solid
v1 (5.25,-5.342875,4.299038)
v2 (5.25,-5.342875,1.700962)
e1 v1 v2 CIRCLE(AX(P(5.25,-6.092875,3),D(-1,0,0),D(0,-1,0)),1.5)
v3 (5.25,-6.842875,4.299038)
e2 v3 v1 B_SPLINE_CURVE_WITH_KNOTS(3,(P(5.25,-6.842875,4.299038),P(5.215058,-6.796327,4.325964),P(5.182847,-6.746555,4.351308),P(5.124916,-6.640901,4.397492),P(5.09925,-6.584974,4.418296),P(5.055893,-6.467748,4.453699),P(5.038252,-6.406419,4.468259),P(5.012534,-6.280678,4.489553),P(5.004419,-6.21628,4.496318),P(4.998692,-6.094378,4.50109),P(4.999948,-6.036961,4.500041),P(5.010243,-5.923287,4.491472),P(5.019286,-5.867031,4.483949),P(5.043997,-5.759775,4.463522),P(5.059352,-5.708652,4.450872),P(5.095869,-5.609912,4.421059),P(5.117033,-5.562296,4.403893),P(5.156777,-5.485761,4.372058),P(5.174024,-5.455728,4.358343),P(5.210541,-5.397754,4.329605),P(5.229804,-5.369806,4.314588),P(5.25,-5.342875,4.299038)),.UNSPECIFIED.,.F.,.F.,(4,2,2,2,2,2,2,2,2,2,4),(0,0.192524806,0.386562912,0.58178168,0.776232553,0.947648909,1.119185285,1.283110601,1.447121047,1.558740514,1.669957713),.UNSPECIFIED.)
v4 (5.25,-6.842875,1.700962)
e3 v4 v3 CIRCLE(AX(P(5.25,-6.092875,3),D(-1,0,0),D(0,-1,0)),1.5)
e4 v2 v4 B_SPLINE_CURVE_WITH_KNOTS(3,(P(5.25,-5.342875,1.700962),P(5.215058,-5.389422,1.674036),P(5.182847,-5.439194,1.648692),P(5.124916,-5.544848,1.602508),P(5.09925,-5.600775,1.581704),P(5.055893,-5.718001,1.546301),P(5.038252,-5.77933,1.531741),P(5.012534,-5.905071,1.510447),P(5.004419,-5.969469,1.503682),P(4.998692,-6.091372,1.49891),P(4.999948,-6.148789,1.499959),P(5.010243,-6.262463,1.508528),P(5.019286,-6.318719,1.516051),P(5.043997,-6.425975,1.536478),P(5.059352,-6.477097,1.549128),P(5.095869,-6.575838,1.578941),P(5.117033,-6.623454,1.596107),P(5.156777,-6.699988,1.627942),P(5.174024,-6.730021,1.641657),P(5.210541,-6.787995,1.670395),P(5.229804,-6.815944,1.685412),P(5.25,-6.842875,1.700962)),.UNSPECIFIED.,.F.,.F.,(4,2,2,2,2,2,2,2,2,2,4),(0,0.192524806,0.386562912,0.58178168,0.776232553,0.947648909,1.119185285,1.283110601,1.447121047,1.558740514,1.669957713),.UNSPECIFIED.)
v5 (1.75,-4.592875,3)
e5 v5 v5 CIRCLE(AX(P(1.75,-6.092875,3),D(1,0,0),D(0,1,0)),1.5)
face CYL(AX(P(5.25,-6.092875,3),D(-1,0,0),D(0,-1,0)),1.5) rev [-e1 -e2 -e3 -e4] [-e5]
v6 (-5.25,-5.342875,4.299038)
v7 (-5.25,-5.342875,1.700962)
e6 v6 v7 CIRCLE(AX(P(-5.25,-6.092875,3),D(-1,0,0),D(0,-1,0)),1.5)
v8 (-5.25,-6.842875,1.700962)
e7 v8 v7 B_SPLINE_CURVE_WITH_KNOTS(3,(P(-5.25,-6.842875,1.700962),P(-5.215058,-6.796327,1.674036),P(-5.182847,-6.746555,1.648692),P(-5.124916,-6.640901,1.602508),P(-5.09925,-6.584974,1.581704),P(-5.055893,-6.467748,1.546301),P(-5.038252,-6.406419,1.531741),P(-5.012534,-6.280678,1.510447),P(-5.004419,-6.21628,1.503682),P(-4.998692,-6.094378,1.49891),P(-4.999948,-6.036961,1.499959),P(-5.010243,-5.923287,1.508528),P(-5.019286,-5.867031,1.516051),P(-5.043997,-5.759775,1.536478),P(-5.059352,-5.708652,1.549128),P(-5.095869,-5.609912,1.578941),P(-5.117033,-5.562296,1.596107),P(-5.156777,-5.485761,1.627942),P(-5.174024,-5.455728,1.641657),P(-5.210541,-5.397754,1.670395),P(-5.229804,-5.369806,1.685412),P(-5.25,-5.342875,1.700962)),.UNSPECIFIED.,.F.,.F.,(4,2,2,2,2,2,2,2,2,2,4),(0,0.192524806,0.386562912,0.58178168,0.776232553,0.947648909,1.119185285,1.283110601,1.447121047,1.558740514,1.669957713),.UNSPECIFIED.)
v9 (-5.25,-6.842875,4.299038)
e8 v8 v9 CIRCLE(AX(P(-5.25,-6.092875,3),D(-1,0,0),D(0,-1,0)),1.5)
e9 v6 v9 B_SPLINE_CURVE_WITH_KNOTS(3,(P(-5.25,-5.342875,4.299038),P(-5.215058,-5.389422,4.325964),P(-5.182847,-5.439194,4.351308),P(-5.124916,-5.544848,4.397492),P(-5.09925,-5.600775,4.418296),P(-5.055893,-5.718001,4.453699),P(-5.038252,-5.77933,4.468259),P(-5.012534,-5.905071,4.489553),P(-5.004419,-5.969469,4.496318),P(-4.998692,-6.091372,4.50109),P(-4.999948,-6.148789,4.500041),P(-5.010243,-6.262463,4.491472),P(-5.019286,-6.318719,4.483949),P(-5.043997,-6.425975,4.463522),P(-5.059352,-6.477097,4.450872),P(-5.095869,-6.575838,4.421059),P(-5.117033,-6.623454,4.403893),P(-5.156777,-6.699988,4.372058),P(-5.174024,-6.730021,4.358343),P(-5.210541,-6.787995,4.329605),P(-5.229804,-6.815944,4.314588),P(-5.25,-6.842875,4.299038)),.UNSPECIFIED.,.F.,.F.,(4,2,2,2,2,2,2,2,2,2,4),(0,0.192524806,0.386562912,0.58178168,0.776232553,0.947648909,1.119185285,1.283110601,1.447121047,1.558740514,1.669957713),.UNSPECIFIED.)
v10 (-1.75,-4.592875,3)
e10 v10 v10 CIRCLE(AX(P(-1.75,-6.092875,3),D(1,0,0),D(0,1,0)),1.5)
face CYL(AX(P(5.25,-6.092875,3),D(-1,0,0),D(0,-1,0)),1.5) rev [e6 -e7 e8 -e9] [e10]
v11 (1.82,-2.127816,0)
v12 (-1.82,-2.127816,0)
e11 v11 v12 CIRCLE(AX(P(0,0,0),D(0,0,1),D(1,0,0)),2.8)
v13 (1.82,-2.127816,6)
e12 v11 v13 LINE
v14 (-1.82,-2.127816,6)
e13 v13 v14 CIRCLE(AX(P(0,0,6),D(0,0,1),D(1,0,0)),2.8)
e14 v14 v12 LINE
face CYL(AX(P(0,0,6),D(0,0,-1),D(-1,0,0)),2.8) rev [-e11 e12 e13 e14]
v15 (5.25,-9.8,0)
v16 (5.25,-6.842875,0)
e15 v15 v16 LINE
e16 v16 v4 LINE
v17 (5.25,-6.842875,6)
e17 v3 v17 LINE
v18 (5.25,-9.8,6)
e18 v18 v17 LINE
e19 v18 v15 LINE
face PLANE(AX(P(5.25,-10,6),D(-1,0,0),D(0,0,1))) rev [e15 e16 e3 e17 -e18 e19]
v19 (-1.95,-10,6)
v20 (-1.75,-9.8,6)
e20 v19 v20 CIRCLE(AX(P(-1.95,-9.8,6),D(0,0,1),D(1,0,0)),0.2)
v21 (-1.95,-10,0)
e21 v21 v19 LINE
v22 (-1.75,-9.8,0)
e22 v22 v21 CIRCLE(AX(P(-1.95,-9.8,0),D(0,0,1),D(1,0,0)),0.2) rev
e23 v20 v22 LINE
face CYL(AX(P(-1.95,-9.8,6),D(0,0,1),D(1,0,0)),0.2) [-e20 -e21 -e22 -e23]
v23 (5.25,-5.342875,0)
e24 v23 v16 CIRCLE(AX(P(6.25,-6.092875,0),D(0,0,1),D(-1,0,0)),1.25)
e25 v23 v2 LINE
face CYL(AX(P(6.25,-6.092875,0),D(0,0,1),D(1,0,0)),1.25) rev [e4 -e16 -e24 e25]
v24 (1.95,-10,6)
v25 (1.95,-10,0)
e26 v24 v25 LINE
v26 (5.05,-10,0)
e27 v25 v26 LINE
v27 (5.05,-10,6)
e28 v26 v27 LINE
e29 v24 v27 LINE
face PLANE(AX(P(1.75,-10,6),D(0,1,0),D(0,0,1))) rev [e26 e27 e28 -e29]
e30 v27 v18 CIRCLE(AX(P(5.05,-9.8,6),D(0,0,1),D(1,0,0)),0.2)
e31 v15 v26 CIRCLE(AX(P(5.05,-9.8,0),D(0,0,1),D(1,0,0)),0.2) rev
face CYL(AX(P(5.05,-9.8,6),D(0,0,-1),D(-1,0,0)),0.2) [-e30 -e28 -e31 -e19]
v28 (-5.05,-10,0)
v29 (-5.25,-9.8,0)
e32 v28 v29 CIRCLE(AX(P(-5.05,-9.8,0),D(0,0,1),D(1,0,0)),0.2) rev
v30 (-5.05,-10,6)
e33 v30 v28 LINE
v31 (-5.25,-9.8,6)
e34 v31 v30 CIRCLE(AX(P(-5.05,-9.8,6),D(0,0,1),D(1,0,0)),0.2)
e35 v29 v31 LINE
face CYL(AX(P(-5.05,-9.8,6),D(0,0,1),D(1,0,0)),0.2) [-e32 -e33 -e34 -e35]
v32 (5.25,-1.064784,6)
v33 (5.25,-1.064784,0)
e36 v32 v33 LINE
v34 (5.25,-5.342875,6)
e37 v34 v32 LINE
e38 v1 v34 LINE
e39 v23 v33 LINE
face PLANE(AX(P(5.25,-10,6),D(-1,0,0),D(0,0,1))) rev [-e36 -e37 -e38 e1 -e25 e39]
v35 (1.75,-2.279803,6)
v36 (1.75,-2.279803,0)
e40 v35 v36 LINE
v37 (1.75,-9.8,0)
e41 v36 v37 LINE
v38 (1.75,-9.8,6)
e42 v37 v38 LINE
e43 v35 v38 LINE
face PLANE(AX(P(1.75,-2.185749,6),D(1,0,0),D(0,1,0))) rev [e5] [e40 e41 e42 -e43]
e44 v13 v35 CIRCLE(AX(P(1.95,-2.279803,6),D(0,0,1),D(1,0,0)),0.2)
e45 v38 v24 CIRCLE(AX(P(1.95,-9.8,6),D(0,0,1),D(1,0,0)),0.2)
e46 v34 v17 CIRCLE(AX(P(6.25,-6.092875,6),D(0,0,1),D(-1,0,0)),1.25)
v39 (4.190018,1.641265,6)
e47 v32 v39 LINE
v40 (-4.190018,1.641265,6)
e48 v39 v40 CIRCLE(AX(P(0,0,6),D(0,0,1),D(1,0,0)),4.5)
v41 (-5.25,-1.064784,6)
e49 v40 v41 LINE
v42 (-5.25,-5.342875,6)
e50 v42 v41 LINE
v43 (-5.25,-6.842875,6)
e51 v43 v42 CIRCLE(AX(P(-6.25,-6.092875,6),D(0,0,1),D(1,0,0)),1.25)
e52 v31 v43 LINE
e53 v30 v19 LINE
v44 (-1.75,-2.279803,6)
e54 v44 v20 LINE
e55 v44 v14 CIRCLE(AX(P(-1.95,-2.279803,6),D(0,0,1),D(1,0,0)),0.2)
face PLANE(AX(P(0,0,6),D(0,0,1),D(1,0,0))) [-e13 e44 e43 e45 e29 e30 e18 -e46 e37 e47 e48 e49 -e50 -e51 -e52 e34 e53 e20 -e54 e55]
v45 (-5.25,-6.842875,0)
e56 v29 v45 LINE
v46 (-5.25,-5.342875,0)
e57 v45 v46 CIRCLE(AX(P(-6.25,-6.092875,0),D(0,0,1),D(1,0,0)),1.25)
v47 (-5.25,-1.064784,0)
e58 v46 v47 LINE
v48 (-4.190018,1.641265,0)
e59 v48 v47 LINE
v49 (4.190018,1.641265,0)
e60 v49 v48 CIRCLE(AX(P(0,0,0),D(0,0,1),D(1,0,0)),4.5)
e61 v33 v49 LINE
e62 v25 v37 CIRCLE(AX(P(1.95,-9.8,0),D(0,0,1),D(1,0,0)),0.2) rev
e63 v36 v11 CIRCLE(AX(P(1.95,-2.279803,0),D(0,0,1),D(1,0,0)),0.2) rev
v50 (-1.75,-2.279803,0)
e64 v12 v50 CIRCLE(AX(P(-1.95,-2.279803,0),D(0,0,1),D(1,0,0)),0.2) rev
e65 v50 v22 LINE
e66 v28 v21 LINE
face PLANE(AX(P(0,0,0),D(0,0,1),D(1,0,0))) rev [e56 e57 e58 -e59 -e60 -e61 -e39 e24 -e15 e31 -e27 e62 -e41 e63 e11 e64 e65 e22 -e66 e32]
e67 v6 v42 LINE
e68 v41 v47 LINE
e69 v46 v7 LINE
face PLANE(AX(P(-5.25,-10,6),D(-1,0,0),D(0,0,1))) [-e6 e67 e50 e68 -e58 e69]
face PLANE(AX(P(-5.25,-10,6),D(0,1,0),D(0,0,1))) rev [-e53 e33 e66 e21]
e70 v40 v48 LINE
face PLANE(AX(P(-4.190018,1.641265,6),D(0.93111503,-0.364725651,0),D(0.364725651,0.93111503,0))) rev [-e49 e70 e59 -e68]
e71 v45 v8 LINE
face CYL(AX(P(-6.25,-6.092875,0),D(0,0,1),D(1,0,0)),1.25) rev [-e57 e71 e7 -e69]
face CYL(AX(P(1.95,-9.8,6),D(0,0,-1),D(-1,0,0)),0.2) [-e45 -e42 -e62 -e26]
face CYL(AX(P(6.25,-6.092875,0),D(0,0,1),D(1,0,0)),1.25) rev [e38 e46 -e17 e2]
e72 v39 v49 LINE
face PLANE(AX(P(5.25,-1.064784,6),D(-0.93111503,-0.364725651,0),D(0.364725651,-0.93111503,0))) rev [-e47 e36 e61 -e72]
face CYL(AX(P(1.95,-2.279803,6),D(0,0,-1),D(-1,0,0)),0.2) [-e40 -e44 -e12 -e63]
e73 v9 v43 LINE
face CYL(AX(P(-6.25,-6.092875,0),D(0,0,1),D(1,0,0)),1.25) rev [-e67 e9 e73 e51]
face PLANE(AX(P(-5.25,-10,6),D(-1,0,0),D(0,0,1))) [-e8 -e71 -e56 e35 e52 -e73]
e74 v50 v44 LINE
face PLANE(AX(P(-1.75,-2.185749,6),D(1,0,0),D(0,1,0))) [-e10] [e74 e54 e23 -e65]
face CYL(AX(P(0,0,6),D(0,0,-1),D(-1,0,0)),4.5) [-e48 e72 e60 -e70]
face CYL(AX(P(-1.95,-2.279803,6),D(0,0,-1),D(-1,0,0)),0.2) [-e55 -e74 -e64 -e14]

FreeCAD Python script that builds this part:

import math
import FreeCAD as App
import Part
import Sketcher
from FreeCAD import Vector


def edges_at(feature, points):
    """Names of the edges that pass closest to the given points."""
    edges = feature.Shape.Edges
    near = lambda p: min(range(len(edges)), key=lambda i: edges[i].distToShape(Part.Vertex(*p))[0])
    return sorted({f"Edge{near(p) + 1}" for p in points})

doc = App.newDocument("Part")
body = doc.addObject("PartDesign::Body", "Body")

sketch1 = body.newObject("Sketcher::SketchObject", "Sketch")
sketch1.AttachmentSupport = (doc.getObject("XY_Plane"), [""])
sketch1.MapMode = "FlatFace"
sketch1.addGeometry([
    Part.LineSegment(Vector(-5.2, -1.1, 0), Vector(-5.2, -10, 0)),
    Part.LineSegment(Vector(-5.2, -10, 0), Vector(-1.8, -10, 0)),
    Part.LineSegment(Vector(-1.8, -10, 0), Vector(-1.8, -2.2, 0)),
    Part.ArcOfCircle(Part.Circle(Vector(0, 0, 0), Vector(0, 0, 1), 2.8), math.radians(-51), math.radians(231)),
    Part.LineSegment(Vector(1.8, -2.2, 0), Vector(1.8, -10, 0)),
    Part.LineSegment(Vector(1.8, -10, 0), Vector(5.2, -10, 0)),
    Part.LineSegment(Vector(5.2, -10, 0), Vector(5.2, -1.1, 0)),
    Part.LineSegment(Vector(5.2, -1.1, 0), Vector(4.2, 1.6, 0)),
    Part.ArcOfCircle(Part.Circle(Vector(0, 0, 0), Vector(0, 0, 1), 4.5), math.radians(21), math.radians(159)),
    Part.LineSegment(Vector(-4.2, 1.6, 0), Vector(-5.2, -1.1, 0)),
], False)
sketch1.addConstraint([
    Sketcher.Constraint("Coincident", 0, 2, 1, 1),
    Sketcher.Constraint("Coincident", 1, 2, 2, 1),
    Sketcher.Constraint("Coincident", 2, 2, 3, 2),
    Sketcher.Constraint("Coincident", 3, 1, 4, 1),
    Sketcher.Constraint("Coincident", 4, 2, 5, 1),
    Sketcher.Constraint("Coincident", 5, 2, 6, 1),
    Sketcher.Constraint("Coincident", 6, 2, 7, 1),
    Sketcher.Constraint("Tangent", 7, 2, 8, 1),
    Sketcher.Constraint("Tangent", 8, 2, 9, 1),
    Sketcher.Constraint("Coincident", 9, 2, 0, 1),
    Sketcher.Constraint("Vertical", 0),
    Sketcher.Constraint("Horizontal", 1),
    Sketcher.Constraint("Vertical", 2),
    Sketcher.Constraint("Vertical", 4),
    Sketcher.Constraint("Horizontal", 5),
    Sketcher.Constraint("Vertical", 6),
    Sketcher.Constraint("Coincident", 3, 3, -1, 1),
    Sketcher.Constraint("Coincident", 8, 3, -1, 1),
    Sketcher.Constraint("Symmetric", 1, 2, 4, 2, -2),
    Sketcher.Constraint("Symmetric", 6, 2, 9, 2, -2),
    Sketcher.Constraint("Radius", 3, 2.8),
    Sketcher.Constraint("Radius", 8, 4.5),
    Sketcher.Constraint("DistanceX", 1, 1, 1, 2, 3.5),
    Sketcher.Constraint("DistanceY", 0, 2, -1, 1, 10.0),
    Sketcher.Constraint("DistanceX", 0, 2, 3, 1, 7.0),
    Sketcher.Constraint("DistanceY", 0, 2, 0, 1, 8.935216),
])
pad1 = body.newObject("PartDesign::Pad", "Pad")
pad1.Profile = sketch1
pad1.Length = 6

sketch2 = body.newObject("Sketcher::SketchObject", "Sketch001")
sketch2.AttachmentSupport = (doc.getObject("XY_Plane"), [""])
sketch2.MapMode = "FlatFace"
sketch2.AttachmentOffset = App.Placement(Vector(0, 0, 6), App.Rotation())
sketch2.addGeometry([
    Part.LineSegment(Vector(-5.2, -5.3, 0), Vector(-5.2, -6.8, 0)),
    Part.ArcOfCircle(Part.Circle(Vector(-6.2, -6.1, 0), Vector(0, 0, 1), 1.2), math.radians(-37), math.radians(37)),
    Part.LineSegment(Vector(5.2, -6.8, 0), Vector(5.2, -5.3, 0)),
    Part.ArcOfCircle(Part.Circle(Vector(6.2, -6.1, 0), Vector(0, 0, 1), 1.2), math.radians(143), math.radians(217)),
], False)
sketch2.addConstraint([
    Sketcher.Constraint("Coincident", 0, 1, 1, 2),
    Sketcher.Constraint("Coincident", 1, 1, 0, 2),
    Sketcher.Constraint("Coincident", 2, 1, 3, 2),
    Sketcher.Constraint("Coincident", 3, 1, 2, 2),
    Sketcher.Constraint("Vertical", 0),
    Sketcher.Constraint("Vertical", 2),
    Sketcher.Constraint("Equal", 1, 3),
    Sketcher.Constraint("Symmetric", 1, 3, 3, 3, -2),
    Sketcher.Constraint("Horizontal", 1, 1, 2, 1),
    Sketcher.Constraint("Radius", 1, 1.25),
    Sketcher.Constraint("DistanceY", 0, 2, 0, 1, 1.5),
    Sketcher.Constraint("DistanceX", 1, 3, 3, 3, 12.5),
    Sketcher.Constraint("DistanceY", 1, 3, -1, 1, 6.092875),
])
pocket1 = body.newObject("PartDesign::Pocket", "Pocket")
pocket1.Profile = sketch2
pocket1.Type = "ThroughAll"

sketch3 = body.newObject("Sketcher::SketchObject", "Sketch002")
sketch3.AttachmentSupport = (doc.getObject("YZ_Plane"), [""])
sketch3.MapMode = "FlatFace"
sketch3.AttachmentOffset = App.Placement(Vector(0, 0, -5.25), App.Rotation())
sketch3.addGeometry(Part.Circle(Vector(-6.1, 3, 0), Vector(0, 0, 1), 1.5), False)
sketch3.addConstraint([
    Sketcher.Constraint("Diameter", 0, 3.0),
    Sketcher.Constraint("DistanceY", -1, 1, 0, 3, 3.0),
    Sketcher.Constraint("DistanceX", 0, 3, -1, 1, 6.092875),
])
pocket2 = body.newObject("PartDesign::Pocket", "Pocket001")
pocket2.Profile = sketch3
pocket2.Type = "ThroughAll"
pocket2.Reversed = True
doc.recompute()

fillet = body.newObject("PartDesign::Fillet", "Fillet")
fillet.Base = (pocket2, edges_at(pocket2, [
    (1.75, -2.186, 3),
    (-1.75, -2.186, 3),
    (-1.75, -10, 3),
    (-5.25, -10, 3),
    (5.25, -10, 3),
    (1.75, -10, 3),
]))
fillet.Radius = 0.2

doc.recompute()
